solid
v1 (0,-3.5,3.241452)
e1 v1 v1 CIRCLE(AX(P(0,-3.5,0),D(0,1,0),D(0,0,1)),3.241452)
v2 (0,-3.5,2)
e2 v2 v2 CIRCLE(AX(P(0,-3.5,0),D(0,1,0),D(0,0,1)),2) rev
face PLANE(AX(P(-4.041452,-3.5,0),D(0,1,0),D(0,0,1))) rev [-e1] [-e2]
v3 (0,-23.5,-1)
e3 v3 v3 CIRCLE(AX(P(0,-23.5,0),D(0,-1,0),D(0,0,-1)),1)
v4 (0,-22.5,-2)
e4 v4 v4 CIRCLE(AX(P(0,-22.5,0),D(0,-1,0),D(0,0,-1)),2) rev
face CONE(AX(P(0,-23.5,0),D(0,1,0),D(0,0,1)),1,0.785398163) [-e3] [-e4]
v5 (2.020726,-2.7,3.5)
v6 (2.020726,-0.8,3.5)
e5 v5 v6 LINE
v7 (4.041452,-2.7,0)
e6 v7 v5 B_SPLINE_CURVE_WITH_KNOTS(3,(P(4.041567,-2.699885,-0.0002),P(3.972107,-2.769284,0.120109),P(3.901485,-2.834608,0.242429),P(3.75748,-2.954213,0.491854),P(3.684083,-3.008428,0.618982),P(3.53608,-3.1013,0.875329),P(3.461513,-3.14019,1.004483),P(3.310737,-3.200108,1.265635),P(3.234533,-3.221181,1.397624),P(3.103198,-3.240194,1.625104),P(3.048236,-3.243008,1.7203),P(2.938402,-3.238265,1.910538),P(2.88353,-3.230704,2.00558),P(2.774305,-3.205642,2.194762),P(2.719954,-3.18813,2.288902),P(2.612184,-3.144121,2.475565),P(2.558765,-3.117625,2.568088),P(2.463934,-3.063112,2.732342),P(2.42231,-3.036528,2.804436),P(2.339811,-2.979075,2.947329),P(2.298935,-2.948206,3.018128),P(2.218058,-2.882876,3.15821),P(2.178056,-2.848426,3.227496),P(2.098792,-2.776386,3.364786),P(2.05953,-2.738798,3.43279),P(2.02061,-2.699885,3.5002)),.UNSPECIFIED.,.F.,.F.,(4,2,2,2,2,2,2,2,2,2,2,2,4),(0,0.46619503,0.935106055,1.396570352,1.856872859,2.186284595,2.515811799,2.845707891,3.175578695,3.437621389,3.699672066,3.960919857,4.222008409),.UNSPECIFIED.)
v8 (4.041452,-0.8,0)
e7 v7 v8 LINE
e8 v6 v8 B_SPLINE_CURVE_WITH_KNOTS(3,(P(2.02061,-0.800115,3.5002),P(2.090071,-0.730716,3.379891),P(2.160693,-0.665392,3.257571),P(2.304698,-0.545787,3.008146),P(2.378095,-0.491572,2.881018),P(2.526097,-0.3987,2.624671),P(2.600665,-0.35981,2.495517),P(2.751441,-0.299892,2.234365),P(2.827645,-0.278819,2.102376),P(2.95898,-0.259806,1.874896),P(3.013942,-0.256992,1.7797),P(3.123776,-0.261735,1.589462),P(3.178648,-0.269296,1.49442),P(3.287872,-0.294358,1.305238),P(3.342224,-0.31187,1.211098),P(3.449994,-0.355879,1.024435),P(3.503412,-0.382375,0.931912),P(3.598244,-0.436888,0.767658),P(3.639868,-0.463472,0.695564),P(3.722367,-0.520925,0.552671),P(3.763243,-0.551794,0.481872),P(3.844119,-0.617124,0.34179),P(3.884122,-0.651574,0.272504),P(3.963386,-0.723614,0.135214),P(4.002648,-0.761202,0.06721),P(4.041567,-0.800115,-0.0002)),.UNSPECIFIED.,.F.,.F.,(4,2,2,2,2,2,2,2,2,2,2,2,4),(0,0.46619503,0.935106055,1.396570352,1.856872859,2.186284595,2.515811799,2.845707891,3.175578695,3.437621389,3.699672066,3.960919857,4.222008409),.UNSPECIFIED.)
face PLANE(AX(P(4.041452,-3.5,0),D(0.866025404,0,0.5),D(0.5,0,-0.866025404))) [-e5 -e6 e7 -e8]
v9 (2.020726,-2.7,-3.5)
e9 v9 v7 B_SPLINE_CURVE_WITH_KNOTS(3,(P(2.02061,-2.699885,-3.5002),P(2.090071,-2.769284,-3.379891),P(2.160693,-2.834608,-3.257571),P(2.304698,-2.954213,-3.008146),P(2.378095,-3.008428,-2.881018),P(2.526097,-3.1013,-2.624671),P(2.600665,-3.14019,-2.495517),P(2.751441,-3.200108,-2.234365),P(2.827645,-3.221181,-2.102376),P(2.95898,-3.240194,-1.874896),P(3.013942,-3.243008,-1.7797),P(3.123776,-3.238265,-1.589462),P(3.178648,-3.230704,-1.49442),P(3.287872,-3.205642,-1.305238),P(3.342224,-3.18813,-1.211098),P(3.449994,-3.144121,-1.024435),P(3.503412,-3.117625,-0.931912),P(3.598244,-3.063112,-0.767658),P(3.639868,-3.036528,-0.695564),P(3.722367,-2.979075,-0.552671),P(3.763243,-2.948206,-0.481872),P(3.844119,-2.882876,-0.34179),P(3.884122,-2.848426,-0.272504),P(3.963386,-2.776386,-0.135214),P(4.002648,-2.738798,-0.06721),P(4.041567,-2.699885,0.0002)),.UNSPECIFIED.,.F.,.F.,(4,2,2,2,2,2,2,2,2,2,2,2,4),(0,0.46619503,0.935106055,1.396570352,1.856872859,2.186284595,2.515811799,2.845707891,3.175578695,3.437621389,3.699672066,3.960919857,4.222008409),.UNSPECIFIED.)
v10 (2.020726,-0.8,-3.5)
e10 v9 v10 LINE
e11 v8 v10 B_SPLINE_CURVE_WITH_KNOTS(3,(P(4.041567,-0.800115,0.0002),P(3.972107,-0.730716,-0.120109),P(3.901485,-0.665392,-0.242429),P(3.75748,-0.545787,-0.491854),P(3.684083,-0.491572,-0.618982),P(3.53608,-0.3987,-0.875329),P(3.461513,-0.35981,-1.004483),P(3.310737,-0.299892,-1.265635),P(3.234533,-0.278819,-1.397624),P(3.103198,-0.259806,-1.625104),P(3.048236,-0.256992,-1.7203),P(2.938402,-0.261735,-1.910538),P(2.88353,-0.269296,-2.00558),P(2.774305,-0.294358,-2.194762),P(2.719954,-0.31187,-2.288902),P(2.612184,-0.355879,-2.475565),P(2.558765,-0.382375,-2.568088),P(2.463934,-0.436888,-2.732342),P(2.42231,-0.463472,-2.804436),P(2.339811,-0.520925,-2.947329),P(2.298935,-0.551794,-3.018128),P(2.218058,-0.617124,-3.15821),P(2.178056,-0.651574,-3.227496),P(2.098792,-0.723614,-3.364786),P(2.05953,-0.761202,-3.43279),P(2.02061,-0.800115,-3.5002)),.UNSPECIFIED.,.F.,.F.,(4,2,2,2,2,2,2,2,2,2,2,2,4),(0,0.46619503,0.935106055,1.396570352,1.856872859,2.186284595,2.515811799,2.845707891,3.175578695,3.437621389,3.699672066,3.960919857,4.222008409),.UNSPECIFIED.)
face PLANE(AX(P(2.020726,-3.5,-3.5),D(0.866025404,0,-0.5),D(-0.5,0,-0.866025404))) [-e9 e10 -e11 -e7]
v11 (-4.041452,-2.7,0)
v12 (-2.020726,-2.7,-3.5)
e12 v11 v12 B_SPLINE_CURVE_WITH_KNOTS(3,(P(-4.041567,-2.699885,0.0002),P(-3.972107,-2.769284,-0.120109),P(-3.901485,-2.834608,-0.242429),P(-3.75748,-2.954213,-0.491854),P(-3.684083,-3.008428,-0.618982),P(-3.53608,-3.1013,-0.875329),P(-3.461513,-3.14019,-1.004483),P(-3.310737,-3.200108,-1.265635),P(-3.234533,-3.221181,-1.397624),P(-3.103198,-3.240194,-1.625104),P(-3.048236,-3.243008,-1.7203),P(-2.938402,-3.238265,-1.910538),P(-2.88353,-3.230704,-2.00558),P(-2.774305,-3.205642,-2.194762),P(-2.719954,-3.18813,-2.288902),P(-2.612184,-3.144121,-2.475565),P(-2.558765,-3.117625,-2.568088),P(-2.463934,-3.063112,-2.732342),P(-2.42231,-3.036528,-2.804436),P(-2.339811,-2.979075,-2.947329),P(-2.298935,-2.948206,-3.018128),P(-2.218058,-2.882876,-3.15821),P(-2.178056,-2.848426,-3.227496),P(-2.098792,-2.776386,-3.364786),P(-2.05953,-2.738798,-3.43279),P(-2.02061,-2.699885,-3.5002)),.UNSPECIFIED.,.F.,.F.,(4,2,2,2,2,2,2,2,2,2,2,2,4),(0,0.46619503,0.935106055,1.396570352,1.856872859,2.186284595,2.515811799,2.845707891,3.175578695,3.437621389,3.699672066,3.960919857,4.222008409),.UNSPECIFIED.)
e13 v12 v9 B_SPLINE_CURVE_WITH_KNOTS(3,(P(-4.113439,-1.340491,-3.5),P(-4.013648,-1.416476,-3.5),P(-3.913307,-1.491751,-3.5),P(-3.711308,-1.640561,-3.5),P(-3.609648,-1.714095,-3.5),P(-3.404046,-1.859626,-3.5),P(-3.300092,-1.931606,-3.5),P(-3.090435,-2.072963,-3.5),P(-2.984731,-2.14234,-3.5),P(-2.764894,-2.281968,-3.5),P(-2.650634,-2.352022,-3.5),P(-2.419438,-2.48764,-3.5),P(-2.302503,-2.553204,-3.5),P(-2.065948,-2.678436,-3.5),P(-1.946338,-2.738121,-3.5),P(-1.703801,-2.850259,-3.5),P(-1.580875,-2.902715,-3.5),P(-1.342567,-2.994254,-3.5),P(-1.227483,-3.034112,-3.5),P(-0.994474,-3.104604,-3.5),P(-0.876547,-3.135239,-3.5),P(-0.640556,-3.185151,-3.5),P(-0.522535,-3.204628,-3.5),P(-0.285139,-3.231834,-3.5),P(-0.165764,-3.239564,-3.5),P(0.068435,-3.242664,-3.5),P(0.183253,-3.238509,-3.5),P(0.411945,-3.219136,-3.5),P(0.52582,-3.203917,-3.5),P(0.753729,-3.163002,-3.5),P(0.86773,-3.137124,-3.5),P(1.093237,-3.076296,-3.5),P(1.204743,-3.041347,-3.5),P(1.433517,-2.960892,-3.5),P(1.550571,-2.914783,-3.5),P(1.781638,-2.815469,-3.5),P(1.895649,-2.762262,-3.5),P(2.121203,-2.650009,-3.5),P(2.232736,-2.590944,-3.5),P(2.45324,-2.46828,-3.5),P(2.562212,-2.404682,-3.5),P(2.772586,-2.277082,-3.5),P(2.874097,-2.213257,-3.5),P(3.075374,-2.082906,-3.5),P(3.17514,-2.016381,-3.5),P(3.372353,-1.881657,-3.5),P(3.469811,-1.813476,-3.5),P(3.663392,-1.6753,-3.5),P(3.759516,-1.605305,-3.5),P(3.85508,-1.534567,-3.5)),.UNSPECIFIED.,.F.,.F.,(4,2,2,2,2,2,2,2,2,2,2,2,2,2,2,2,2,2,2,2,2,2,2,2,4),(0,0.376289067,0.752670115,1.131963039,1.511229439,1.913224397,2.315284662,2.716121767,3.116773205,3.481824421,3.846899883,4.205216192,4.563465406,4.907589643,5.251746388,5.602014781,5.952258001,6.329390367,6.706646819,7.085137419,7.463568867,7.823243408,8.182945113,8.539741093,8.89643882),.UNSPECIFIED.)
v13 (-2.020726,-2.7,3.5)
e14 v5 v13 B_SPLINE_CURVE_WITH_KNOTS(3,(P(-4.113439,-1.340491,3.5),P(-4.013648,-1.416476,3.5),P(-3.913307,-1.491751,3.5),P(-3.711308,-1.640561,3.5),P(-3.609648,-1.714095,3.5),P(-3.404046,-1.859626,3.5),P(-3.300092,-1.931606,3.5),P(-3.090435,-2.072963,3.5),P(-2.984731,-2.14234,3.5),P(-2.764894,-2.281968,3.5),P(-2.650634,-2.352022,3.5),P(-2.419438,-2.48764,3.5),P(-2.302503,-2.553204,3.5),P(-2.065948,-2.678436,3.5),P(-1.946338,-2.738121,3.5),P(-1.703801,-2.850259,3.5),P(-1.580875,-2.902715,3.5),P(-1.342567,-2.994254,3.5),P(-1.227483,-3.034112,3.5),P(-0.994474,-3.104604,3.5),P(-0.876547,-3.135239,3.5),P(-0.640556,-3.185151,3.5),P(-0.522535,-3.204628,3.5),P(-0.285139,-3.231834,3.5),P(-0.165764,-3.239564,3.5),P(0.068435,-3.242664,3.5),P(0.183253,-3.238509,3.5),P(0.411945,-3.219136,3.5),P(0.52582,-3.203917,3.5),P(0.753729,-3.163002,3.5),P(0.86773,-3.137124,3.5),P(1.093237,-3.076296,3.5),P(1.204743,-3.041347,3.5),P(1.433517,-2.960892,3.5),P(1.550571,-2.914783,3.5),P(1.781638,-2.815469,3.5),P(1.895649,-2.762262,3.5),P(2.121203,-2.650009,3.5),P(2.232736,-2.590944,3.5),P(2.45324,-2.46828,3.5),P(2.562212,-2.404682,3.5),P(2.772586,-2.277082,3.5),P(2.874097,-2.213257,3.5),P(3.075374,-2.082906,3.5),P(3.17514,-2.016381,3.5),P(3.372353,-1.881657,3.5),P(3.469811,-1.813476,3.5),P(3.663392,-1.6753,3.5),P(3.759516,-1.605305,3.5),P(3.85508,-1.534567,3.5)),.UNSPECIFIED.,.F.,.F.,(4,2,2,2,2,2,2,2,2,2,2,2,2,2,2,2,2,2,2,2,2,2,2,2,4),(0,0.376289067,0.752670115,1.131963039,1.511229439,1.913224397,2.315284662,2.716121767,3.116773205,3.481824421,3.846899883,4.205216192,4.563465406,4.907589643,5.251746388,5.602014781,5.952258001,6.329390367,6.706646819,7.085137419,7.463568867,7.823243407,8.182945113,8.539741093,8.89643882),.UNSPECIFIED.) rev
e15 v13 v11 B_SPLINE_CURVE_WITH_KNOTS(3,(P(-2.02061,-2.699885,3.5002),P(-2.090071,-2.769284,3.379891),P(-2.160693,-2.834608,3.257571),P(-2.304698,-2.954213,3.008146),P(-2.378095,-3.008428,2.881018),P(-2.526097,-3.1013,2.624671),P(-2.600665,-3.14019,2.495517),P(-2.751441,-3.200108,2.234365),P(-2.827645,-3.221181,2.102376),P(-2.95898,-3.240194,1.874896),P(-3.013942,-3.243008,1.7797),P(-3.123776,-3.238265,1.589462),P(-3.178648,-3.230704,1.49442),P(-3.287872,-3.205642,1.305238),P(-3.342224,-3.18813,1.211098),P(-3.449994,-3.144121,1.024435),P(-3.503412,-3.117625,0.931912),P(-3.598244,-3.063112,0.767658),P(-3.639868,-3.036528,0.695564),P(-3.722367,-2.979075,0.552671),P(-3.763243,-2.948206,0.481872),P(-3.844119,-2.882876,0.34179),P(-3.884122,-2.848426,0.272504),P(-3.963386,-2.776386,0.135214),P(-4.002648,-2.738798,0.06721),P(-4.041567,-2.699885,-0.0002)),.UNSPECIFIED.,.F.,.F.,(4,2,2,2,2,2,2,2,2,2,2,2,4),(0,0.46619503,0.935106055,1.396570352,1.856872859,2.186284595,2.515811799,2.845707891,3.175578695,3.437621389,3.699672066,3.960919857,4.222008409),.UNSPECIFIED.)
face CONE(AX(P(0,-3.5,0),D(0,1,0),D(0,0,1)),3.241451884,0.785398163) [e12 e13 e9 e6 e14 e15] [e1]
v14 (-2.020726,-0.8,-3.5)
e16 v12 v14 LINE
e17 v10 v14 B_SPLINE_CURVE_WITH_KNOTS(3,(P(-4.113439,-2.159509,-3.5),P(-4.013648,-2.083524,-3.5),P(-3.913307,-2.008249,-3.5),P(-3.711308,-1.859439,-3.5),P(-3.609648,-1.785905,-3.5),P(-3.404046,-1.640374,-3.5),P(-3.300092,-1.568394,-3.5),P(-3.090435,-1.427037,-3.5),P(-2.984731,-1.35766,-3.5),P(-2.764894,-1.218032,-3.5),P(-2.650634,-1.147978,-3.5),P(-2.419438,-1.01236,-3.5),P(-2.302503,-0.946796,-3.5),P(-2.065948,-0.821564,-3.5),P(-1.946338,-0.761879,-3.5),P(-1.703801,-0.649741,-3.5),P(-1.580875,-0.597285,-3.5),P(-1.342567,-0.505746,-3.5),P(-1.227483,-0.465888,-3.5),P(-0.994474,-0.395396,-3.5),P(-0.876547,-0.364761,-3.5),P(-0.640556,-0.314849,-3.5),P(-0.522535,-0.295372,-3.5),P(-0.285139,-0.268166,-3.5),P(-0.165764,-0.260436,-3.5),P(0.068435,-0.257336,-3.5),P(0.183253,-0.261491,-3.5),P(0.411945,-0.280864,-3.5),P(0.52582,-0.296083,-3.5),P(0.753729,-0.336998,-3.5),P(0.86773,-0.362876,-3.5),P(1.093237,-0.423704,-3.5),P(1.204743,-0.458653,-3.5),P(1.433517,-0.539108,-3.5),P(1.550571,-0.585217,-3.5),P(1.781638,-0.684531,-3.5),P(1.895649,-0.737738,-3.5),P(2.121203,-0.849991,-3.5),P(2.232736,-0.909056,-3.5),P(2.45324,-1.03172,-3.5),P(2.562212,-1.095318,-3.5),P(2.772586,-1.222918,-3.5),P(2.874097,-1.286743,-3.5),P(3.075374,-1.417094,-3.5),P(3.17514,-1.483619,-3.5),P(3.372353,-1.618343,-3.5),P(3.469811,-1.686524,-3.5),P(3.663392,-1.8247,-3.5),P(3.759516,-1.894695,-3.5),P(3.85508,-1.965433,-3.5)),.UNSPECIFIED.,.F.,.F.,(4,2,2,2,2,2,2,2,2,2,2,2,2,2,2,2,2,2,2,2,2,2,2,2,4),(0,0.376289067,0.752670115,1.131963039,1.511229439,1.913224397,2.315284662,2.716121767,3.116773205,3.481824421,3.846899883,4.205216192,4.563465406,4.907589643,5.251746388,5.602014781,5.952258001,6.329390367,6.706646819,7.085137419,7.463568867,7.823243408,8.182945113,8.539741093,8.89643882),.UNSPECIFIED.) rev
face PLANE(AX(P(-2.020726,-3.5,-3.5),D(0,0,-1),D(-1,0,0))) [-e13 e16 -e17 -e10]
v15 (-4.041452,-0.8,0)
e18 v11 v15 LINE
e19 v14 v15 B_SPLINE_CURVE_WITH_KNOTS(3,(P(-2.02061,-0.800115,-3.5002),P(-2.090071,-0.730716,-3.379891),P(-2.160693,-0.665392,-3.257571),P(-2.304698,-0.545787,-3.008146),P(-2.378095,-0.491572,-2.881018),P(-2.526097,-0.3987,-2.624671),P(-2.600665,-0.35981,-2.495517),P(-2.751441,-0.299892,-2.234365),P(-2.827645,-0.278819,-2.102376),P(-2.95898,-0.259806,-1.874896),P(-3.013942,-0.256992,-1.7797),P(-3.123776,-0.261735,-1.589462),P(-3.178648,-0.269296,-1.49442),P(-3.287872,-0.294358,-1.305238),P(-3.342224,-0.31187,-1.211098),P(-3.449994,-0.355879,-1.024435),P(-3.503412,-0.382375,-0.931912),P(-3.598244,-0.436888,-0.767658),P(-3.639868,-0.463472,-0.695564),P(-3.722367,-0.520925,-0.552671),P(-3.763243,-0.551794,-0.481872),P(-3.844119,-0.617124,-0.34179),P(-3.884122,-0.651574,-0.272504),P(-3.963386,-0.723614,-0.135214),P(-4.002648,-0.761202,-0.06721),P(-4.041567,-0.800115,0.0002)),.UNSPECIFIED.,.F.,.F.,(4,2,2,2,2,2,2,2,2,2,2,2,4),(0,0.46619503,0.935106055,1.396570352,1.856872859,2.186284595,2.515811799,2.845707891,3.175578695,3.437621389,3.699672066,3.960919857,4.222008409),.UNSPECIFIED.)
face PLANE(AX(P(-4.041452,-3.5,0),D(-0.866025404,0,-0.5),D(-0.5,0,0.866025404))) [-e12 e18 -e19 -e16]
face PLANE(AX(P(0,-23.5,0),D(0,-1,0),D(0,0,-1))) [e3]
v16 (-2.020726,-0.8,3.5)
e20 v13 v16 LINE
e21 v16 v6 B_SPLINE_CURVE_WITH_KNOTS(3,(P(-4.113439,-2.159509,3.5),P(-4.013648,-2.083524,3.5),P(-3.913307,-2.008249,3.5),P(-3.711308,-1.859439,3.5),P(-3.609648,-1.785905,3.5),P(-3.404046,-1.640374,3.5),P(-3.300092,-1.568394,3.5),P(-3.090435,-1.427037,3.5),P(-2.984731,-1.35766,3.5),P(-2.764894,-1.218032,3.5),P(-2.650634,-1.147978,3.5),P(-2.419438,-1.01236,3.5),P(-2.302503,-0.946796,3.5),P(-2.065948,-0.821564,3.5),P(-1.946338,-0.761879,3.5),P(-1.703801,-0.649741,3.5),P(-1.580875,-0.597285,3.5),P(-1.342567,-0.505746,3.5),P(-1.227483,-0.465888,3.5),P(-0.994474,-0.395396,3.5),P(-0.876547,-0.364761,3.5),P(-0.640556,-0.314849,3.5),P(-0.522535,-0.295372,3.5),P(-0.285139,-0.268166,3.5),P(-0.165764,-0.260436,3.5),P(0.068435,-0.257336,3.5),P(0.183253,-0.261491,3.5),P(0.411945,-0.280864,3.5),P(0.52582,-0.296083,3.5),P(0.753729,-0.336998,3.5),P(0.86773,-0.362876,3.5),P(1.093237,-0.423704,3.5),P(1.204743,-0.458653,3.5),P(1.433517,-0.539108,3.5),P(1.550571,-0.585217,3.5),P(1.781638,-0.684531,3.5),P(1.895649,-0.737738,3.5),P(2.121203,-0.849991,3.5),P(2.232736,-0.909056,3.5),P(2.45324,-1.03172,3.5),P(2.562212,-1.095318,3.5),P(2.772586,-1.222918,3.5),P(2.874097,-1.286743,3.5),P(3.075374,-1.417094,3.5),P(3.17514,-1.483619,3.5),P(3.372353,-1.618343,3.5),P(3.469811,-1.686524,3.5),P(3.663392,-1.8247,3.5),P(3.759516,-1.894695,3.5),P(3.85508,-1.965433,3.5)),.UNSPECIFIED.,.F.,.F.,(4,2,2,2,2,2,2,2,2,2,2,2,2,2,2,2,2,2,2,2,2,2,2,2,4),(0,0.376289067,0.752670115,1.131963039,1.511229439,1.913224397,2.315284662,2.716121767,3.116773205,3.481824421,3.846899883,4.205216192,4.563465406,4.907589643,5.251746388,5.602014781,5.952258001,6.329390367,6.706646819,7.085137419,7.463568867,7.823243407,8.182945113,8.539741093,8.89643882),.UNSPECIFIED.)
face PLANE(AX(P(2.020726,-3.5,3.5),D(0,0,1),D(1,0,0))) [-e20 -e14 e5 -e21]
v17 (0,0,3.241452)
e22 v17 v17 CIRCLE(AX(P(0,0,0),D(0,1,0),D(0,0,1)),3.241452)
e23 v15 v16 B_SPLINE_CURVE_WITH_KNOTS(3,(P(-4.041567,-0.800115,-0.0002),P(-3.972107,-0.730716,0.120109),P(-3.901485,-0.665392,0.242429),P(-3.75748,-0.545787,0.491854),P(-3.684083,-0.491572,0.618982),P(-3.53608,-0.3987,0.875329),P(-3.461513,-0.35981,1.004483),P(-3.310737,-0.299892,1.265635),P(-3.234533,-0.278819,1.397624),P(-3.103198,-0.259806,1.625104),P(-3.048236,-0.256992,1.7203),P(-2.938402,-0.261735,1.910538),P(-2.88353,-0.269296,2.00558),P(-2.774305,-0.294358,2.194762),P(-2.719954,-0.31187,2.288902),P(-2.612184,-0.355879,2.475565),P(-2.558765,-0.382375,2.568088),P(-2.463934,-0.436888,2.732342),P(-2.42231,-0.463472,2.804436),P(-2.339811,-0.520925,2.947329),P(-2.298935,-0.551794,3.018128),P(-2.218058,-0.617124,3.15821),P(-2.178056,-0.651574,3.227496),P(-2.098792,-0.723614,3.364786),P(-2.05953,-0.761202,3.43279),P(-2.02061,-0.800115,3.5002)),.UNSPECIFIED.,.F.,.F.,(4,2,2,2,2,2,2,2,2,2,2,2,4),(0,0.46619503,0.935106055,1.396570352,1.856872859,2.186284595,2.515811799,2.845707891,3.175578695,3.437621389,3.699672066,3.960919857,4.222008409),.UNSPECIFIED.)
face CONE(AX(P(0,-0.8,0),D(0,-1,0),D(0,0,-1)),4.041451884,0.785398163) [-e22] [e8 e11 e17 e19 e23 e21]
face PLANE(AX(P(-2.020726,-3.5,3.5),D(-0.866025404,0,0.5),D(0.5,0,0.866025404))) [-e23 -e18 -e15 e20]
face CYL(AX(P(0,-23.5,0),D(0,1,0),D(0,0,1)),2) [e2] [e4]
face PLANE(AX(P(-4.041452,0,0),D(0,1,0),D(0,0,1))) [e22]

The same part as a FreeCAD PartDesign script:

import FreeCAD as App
import Part
import Sketcher
from FreeCAD import Vector
Q = App.Units.Quantity


def edges_at(feature, points):
    """Names of the edges that pass closest to the given points."""
    edges = feature.Shape.Edges
    near = lambda p: min(range(len(edges)), key=lambda i: edges[i].distToShape(Part.Vertex(*p))[0])
    return sorted({f"Edge{near(p) + 1}" for p in points})

doc = App.newDocument("Part")
body = doc.addObject("PartDesign::Body", "Body")

# Sketch on XZ plane
sketch1 = body.newObject("Sketcher::SketchObject", "Sketch")
sketch1.AttachmentSupport = (doc.getObject("XZ_Plane"), [""])
sketch1.MapMode = "FlatFace"
sketch1.addGeometry(Part.LineSegment(Vector(2, -3.5, 0), Vector(-2, -3.5, 0)), False)
sketch1.addGeometry(Part.LineSegment(Vector(-2, -3.5, 0), Vector(-4, 0, 0)), False)
sketch1.addGeometry(Part.LineSegment(Vector(-4, 0, 0), Vector(-2, 3.5, 0)), False)
sketch1.addGeometry(Part.LineSegment(Vector(-2, 3.5, 0), Vector(2, 3.5, 0)), False)
sketch1.addGeometry(Part.LineSegment(Vector(2, 3.5, 0), Vector(4, 0, 0)), False)
sketch1.addGeometry(Part.LineSegment(Vector(4, 0, 0), Vector(2, -3.5, 0)), False)
sketch1.addConstraint(Sketcher.Constraint("Coincident", 0, 2, 1, 1))
sketch1.addConstraint(Sketcher.Constraint("Coincident", 1, 2, 2, 1))
sketch1.addConstraint(Sketcher.Constraint("Coincident", 2, 2, 3, 1))
sketch1.addConstraint(Sketcher.Constraint("Coincident", 3, 2, 4, 1))
sketch1.addConstraint(Sketcher.Constraint("Coincident", 4, 2, 5, 1))
sketch1.addConstraint(Sketcher.Constraint("Coincident", 5, 2, 0, 1))
sketch1.addConstraint(Sketcher.Constraint("Horizontal", 0))
sketch1.addConstraint(Sketcher.Constraint("Horizontal", 3))
sketch1.addConstraint(Sketcher.Constraint("Symmetric", 0, 2, 3, 2, -1, 1))
sketch1.addConstraint(Sketcher.Constraint("Symmetric", 1, 2, 4, 2, -1, 1))
sketch1.addConstraint(Sketcher.Constraint("PointOnObject", 1, 2, -1))
sketch1.addConstraint(Sketcher.Constraint("Parallel", 2, 5))
sketch1.addConstraint(Sketcher.Constraint("Vertical", 0, 2, 2, 2))
sketch1.addConstraint(Sketcher.Constraint("Angle", 1, Q("120 deg")))
sketch1.addConstraint(Sketcher.Constraint("DistanceY", 0, 2, 2, 2, 7.0))
sketch1.addConstraint(Sketcher.Constraint("DistanceX", 0, 2, 0, 1, 4.041452))
pad1 = body.newObject("PartDesign::Pad", "Pad")
pad1.Profile = sketch1
pad1.Length = 3.5

# Sketch on XZ plane
sketch2 = body.newObject("Sketcher::SketchObject", "Sketch001")
sketch2.AttachmentSupport = (doc.getObject("XZ_Plane"), [""])
sketch2.MapMode = "FlatFace"
sketch2.AttachmentOffset = App.Placement(Vector(0, 0, 3.5), App.Rotation())
sketch2.addGeometry(Part.Circle(Vector(0, 0, 0), Vector(0, 0, 1), 2), False)
sketch2.addConstraint(Sketcher.Constraint("Coincident", 0, 3, -1, 1))
sketch2.addConstraint(Sketcher.Constraint("Diameter", 0, 4.0))
pad2 = body.newObject("PartDesign::Pad", "Pad001")
pad2.Profile = sketch2
pad2.Length = 20
doc.recompute()

chamfer = body.newObject("PartDesign::Chamfer", "Chamfer")
chamfer.Base = (pad2, edges_at(pad2, [(0, -23.5, -2)]))
chamfer.Size = 1

# Sketch on XY plane
sketch3 = body.newObject("Sketcher::SketchObject", "Sketch002")
sketch3.AttachmentSupport = (doc.getObject("XY_Plane"), [""])
sketch3.MapMode = "FlatFace"
sketch3.addGeometry(Part.LineSegment(Vector(-4, -0.8, 0), Vector(-3.2, 0, 0)), False)
sketch3.addGeometry(Part.LineSegment(Vector(-3.2, 0, 0), Vector(-4, 0, 0)), False)
sketch3.addGeometry(Part.LineSegment(Vector(-4, 0, 0), Vector(-4, -0.8, 0)), False)
sketch3.addGeometry(Part.LineSegment(Vector(-3.2, -3.5, 0), Vector(-4, -2.7, 0)), False)
sketch3.addGeometry(Part.LineSegment(Vector(-4, -2.7, 0), Vector(-4, -3.5, 0)), False)
sketch3.addGeometry(Part.LineSegment(Vector(-4, -3.5, 0), Vector(-3.2, -3.5, 0)), False)
sketch3.addConstraint(Sketcher.Constraint("Coincident", 0, 2, 1, 1))
sketch3.addConstraint(Sketcher.Constraint("Coincident", 1, 2, 2, 1))
sketch3.addConstraint(Sketcher.Constraint("Coincident", 2, 2, 0, 1))
sketch3.addConstraint(Sketcher.Constraint("Coincident", 3, 2, 4, 1))
sketch3.addConstraint(Sketcher.Constraint("Coincident", 4, 2, 5, 1))
sketch3.addConstraint(Sketcher.Constraint("Coincident", 5, 2, 3, 1))
sketch3.addConstraint(Sketcher.Constraint("Horizontal", 1))
sketch3.addConstraint(Sketcher.Constraint("Vertical", 2))
sketch3.addConstraint(Sketcher.Constraint("Vertical", 4))
sketch3.addConstraint(Sketcher.Constraint("Horizontal", 5))
sketch3.addConstraint(Sketcher.Constraint("PointOnObject", 0, 2, -1))
sketch3.addConstraint(Sketcher.Constraint("Perpendicular", 0, 3))
sketch3.addConstraint(Sketcher.Constraint("Vertical", 2, 2, 3, 2))
sketch3.addConstraint(Sketcher.Constraint("Vertical", 0, 2, 5, 2))
sketch3.addConstraint(Sketcher.Constraint("Equal", 5, 2))
sketch3.addConstraint(Sketcher.Constraint("DistanceX", 1, 2, 1, 1, 0.8))
sketch3.addConstraint(Sketcher.Constraint("DistanceY", 3, 2, -1, 1, 2.7))
sketch3.addConstraint(Sketcher.Constraint("DistanceX", 0, 2, -1, 1, 3.241452))
groove = body.newObject("PartDesign::Groove", "Groove")
groove.Profile = sketch3
groove.ReferenceAxis = (sketch3, ["V_Axis"])
groove.Angle = 360

doc.recompute()
